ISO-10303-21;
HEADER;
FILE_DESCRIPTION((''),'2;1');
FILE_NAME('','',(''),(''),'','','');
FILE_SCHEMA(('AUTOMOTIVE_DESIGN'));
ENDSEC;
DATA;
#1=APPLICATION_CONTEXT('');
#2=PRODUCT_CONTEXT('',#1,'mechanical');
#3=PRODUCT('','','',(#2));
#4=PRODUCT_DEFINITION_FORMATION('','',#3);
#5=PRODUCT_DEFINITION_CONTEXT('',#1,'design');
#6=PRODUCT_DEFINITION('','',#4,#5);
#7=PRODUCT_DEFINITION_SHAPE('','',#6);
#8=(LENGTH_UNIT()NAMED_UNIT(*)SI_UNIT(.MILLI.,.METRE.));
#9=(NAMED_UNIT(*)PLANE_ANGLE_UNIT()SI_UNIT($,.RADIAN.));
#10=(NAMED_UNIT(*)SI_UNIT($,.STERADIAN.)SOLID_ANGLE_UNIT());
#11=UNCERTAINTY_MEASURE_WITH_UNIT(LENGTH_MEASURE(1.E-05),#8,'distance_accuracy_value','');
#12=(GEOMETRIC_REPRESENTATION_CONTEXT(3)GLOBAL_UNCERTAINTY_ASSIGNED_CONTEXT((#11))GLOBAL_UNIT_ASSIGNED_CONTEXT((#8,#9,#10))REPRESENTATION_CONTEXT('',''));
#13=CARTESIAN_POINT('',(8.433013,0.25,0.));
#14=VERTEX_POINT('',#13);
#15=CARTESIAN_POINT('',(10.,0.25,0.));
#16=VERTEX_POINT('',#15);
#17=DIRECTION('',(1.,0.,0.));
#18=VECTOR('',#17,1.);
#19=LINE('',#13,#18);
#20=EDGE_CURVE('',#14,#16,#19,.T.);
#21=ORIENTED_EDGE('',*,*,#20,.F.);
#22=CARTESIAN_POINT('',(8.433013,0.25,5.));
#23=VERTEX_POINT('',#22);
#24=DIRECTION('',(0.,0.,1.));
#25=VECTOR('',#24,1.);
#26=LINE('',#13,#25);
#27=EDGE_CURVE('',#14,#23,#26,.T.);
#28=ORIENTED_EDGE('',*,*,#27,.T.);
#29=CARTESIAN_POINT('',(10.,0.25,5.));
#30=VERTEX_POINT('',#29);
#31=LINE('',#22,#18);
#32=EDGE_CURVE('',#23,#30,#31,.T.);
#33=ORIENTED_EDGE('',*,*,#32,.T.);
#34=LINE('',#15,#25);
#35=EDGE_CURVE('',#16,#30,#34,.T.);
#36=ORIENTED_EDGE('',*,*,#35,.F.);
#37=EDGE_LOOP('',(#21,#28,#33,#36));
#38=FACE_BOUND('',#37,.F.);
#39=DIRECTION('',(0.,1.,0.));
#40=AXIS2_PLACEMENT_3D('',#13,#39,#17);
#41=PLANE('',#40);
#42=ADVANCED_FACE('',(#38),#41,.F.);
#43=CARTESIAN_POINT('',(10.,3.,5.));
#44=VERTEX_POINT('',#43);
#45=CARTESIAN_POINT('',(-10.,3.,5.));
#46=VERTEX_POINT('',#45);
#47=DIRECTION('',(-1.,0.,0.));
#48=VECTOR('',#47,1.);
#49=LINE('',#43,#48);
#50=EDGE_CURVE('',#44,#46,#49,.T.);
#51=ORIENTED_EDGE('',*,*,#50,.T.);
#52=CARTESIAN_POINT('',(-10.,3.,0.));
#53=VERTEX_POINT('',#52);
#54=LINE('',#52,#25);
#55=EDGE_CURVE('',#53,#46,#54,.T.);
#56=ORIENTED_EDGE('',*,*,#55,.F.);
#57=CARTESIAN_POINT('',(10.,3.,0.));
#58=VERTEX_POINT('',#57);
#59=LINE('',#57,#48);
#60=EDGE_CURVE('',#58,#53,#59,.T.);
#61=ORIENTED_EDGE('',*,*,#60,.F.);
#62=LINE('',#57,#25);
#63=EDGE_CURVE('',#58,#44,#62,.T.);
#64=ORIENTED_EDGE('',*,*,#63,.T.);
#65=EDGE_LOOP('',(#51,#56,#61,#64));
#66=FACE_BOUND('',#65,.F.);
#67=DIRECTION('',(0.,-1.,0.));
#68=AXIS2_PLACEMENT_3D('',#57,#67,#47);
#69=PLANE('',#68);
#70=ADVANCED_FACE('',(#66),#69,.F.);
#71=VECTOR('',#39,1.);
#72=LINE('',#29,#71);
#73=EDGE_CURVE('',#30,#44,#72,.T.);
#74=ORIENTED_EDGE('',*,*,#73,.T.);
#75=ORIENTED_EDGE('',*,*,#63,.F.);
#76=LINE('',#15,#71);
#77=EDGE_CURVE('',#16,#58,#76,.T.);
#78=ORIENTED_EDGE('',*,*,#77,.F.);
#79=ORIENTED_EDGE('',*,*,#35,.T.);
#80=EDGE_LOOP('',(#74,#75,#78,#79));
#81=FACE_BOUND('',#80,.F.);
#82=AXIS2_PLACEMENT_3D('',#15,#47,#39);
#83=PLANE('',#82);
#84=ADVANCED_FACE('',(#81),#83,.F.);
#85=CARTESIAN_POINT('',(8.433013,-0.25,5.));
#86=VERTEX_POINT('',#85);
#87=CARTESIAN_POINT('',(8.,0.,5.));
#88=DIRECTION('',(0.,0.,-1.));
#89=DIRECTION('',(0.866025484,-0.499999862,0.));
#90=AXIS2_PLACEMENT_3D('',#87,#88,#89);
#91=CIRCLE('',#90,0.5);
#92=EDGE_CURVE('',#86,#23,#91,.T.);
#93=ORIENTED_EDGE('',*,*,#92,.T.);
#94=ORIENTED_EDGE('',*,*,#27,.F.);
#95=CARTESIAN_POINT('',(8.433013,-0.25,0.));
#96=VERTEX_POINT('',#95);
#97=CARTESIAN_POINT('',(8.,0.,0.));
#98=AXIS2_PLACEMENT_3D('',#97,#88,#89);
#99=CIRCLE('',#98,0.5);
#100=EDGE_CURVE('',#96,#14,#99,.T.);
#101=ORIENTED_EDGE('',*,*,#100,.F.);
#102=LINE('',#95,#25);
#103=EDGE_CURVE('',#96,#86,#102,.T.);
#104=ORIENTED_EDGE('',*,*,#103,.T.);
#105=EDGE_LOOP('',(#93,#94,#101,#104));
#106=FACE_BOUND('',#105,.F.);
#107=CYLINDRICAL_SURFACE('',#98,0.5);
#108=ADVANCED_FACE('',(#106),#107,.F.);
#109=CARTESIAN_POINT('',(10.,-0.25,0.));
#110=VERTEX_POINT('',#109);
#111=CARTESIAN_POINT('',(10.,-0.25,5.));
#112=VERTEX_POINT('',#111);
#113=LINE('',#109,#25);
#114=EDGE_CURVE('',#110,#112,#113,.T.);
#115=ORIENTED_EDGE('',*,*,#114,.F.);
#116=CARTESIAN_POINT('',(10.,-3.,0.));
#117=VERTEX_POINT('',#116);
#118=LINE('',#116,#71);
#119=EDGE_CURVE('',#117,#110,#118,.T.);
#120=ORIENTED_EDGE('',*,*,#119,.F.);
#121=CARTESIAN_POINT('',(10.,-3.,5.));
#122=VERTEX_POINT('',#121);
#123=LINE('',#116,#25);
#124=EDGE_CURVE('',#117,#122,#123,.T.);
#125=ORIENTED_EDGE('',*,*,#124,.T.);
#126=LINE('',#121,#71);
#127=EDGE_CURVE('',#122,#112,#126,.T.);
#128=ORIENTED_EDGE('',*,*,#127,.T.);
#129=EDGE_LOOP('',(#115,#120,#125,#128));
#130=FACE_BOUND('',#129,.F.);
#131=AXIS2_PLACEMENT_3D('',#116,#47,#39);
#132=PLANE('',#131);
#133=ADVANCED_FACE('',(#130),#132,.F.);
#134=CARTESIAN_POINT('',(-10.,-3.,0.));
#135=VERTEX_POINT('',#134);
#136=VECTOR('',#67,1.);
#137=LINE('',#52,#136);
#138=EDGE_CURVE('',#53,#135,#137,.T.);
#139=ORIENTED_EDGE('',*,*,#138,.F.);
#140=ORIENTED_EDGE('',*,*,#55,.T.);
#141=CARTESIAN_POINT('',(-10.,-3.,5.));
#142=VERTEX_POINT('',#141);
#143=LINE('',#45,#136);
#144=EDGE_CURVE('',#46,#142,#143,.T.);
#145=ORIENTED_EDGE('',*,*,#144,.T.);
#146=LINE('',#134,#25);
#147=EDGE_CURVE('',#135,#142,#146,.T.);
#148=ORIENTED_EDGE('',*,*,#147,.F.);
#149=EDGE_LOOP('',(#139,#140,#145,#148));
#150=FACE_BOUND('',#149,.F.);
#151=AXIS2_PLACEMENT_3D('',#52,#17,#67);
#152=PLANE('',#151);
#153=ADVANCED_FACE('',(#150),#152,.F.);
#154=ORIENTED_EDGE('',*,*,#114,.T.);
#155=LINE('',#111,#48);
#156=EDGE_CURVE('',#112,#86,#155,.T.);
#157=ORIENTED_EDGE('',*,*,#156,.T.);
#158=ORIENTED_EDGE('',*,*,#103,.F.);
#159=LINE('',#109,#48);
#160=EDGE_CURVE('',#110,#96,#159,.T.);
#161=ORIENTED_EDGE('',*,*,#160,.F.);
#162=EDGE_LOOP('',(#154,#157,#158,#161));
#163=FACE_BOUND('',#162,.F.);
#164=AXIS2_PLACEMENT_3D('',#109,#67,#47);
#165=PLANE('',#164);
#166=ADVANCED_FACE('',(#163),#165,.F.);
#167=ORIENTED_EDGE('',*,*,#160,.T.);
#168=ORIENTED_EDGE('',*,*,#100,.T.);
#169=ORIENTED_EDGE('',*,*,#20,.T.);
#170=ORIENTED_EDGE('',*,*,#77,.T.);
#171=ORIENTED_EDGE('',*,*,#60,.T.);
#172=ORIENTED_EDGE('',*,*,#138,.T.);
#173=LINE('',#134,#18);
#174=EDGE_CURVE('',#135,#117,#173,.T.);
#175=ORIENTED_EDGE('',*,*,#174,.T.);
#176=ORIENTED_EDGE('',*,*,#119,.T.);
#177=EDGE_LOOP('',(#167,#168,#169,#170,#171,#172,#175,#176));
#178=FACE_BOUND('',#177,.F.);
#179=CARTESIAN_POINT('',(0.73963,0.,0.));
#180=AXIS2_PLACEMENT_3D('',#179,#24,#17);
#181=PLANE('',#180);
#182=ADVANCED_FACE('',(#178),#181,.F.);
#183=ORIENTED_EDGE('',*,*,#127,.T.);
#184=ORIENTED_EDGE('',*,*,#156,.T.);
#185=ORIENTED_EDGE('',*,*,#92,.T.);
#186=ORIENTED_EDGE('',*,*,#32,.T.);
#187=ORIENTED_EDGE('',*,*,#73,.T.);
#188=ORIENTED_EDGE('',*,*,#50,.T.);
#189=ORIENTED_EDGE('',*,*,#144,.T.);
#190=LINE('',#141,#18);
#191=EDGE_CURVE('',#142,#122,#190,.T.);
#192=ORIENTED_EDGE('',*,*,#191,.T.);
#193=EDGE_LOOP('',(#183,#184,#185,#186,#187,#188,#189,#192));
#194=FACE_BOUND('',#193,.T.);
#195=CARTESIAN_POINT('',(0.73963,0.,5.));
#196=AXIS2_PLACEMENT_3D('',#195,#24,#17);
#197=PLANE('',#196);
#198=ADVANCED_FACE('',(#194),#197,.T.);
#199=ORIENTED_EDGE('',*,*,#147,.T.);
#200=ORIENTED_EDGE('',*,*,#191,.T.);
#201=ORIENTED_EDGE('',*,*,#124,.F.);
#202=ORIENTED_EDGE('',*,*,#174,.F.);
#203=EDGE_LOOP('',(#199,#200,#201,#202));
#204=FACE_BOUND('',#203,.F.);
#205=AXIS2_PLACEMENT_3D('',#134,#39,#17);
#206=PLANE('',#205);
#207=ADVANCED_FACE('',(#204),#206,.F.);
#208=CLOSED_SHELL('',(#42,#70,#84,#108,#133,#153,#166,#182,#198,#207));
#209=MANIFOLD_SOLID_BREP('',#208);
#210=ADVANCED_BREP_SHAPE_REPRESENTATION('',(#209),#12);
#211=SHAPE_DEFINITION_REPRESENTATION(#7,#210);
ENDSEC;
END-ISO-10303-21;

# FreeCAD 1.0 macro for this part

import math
import FreeCAD as App
import Part
import Sketcher

V = App.Vector
Q = App.Units.Quantity

doc = App.newDocument("Part")
body = doc.addObject("PartDesign::Body", "Body")

# Sketch on XY plane
sketch1 = body.newObject("Sketcher::SketchObject", "Sketch")
sketch1.AttachmentSupport = (doc.getObject("XY_Plane"), [""])
sketch1.MapMode = "FlatFace"
sketch1.addGeometry(Part.LineSegment(V(-10, -3, 0), V(10, -3, 0)), False)
sketch1.addGeometry(Part.LineSegment(V(10, -3, 0), V(10, -0.2, 0)), False)
sketch1.addGeometry(Part.LineSegment(V(10, -0.2, 0), V(8.4, -0.2, 0)), False)
sketch1.addGeometry(Part.ArcOfCircle(Part.Circle(V(8, 0, 0), V(0, 0, 1), 0.5), math.radians(30), math.radians(330)), False)
sketch1.addGeometry(Part.LineSegment(V(8.4, 0.2, 0), V(10, 0.2, 0)), False)
sketch1.addGeometry(Part.LineSegment(V(10, 0.2, 0), V(10, 3, 0)), False)
sketch1.addGeometry(Part.LineSegment(V(10, 3, 0), V(-10, 3, 0)), False)
sketch1.addGeometry(Part.LineSegment(V(-10, 3, 0), V(-10, -3, 0)), False)
sketch1.addConstraint(Sketcher.Constraint("Coincident", 0, 2, 1, 1))
sketch1.addConstraint(Sketcher.Constraint("Coincident", 1, 2, 2, 1))
sketch1.addConstraint(Sketcher.Constraint("Coincident", 2, 2, 3, 2))
sketch1.addConstraint(Sketcher.Constraint("Coincident", 3, 1, 4, 1))
sketch1.addConstraint(Sketcher.Constraint("Coincident", 4, 2, 5, 1))
sketch1.addConstraint(Sketcher.Constraint("Coincident", 5, 2, 6, 1))
sketch1.addConstraint(Sketcher.Constraint("Coincident", 6, 2, 7, 1))
sketch1.addConstraint(Sketcher.Constraint("Coincident", 7, 2, 0, 1))
sketch1.addConstraint(Sketcher.Constraint("Horizontal", 0))
sketch1.addConstraint(Sketcher.Constraint("Vertical", 1))
sketch1.addConstraint(Sketcher.Constraint("Horizontal", 2))
sketch1.addConstraint(Sketcher.Constraint("Horizontal", 4))
sketch1.addConstraint(Sketcher.Constraint("Vertical", 5))
sketch1.addConstraint(Sketcher.Constraint("Horizontal", 6))
sketch1.addConstraint(Sketcher.Constraint("Vertical", 7))
sketch1.addConstraint(Sketcher.Constraint("Symmetric", 0, 2, 6, 2, -1, 1))
sketch1.addConstraint(Sketcher.Constraint("Symmetric", 2, 2, 3, 1, -1))
sketch1.addConstraint(Sketcher.Constraint("Vertical", 1, 2, 4, 2))
sketch1.addConstraint(Sketcher.Constraint("Radius", 3, Q("0.5 mm")))
sketch1.addConstraint(Sketcher.Constraint("DistanceX", 0, 1, 0, 2, Q("20 mm")))
sketch1.addConstraint(Sketcher.Constraint("DistanceY", 7, 2, 7, 1, Q("6 mm")))
sketch1.addConstraint(Sketcher.Constraint("DistanceX", -1, 1, 3, 3, Q("8 mm")))
sketch1.addConstraint(Sketcher.Constraint("DistanceY", 1, 1, 1, 2, Q("2.75 mm")))
pad1 = body.newObject("PartDesign::Pad", "Pad")
pad1.Profile = sketch1
pad1.Length = 5

doc.recompute()
